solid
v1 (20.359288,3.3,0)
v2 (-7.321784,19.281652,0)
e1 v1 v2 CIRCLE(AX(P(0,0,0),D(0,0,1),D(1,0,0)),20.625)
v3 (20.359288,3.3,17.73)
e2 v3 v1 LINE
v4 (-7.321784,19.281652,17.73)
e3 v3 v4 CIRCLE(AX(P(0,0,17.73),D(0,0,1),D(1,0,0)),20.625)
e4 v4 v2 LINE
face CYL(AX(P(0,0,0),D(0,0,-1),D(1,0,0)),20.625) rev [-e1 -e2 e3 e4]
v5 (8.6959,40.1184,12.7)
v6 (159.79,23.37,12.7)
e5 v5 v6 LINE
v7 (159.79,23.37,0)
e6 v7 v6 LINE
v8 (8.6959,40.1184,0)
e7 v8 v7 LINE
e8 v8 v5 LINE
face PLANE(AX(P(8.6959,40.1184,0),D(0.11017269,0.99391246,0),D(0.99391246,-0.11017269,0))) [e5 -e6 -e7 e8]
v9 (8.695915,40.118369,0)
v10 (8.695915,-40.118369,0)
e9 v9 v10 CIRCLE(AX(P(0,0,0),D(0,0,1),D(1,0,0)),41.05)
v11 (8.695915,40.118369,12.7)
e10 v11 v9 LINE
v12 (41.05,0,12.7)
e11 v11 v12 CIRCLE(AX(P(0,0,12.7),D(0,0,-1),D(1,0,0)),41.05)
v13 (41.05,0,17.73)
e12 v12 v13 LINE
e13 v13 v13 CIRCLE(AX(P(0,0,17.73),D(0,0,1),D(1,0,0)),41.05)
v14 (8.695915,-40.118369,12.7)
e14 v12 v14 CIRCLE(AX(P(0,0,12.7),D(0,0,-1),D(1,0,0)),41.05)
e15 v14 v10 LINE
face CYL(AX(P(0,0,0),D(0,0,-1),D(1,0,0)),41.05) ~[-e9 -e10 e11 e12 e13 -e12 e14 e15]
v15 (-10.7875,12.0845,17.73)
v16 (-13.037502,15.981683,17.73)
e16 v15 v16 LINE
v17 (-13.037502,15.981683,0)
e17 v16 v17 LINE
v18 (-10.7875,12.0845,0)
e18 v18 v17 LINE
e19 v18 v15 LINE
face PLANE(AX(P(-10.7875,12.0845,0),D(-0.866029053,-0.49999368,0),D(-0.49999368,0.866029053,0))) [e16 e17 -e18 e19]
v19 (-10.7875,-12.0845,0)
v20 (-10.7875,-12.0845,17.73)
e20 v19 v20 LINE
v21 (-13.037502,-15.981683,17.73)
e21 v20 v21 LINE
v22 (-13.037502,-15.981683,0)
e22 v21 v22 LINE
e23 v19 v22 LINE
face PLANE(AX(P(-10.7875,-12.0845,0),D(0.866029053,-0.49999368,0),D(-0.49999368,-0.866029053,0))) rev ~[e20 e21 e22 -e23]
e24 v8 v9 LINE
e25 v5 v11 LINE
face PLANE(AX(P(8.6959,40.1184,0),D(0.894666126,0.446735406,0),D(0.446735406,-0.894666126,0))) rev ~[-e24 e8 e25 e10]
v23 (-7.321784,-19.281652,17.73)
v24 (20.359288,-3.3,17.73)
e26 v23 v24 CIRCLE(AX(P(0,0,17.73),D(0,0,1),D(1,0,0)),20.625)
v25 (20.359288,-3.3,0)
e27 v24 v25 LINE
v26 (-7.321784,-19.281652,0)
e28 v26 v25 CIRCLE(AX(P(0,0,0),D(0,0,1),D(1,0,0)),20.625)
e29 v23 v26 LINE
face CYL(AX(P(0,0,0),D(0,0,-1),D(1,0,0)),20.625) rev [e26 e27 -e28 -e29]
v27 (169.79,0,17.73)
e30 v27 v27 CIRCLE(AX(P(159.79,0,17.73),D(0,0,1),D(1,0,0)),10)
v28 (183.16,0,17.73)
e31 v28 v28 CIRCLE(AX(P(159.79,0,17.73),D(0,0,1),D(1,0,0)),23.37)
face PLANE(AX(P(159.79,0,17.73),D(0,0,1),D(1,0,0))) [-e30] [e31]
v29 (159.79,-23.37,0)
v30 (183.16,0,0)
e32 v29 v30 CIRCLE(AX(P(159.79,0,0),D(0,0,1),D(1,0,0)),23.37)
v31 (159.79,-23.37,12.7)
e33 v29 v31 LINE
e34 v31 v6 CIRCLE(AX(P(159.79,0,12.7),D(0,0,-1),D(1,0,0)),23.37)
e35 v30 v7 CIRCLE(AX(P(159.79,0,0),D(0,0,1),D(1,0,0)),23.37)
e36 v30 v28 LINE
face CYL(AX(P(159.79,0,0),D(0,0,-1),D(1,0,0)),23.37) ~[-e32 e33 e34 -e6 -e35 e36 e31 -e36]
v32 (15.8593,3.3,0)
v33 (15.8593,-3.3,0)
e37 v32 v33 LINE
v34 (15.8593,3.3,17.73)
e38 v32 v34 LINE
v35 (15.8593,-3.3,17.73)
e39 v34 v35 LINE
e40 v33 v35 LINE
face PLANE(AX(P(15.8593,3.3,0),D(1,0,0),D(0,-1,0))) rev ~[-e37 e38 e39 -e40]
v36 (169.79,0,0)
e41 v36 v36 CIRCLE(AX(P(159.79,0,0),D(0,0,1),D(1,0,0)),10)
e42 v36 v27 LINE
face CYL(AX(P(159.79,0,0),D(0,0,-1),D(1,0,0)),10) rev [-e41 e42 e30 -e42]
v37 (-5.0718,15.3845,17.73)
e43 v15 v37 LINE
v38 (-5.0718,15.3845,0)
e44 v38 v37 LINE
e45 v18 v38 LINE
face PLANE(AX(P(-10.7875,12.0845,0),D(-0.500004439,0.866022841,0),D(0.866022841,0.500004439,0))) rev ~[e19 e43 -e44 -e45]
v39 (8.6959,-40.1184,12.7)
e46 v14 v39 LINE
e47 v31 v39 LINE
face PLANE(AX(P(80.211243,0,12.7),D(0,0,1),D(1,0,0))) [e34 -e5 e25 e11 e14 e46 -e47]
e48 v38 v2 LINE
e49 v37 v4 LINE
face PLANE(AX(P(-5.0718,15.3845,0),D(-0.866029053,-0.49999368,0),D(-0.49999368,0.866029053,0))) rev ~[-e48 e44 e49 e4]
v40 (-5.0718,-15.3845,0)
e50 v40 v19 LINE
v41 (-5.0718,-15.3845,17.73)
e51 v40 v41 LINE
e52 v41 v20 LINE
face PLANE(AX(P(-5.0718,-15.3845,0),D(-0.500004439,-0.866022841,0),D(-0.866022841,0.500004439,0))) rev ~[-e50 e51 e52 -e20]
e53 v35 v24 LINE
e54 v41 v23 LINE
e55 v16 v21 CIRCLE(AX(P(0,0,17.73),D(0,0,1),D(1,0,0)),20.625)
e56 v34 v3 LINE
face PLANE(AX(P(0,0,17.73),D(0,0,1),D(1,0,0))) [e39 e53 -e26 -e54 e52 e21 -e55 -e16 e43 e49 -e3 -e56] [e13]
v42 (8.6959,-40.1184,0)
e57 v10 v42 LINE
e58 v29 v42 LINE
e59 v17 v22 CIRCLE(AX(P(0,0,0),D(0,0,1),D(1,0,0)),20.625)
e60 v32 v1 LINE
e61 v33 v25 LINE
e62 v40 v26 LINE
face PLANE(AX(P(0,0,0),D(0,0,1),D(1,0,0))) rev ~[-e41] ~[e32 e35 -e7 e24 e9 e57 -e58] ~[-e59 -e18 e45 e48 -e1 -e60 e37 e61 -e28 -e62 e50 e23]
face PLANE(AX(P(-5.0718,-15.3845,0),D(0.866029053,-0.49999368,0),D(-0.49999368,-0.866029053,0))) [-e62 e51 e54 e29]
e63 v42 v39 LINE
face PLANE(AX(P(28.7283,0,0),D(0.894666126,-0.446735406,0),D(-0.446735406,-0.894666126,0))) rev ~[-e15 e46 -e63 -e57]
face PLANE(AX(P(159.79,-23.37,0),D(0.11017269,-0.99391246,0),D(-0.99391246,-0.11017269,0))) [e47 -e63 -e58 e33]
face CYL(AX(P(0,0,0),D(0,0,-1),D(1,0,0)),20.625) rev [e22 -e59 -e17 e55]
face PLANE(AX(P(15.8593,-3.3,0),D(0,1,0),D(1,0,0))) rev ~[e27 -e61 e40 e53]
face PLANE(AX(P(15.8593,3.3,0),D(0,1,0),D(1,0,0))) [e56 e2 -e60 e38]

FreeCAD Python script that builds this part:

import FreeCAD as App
import Part
import Sketcher

V = App.Vector
Q = App.Units.Quantity

doc = App.newDocument("Part")
body = doc.addObject("PartDesign::Body", "Body")
body.AllowCompound = True

# Sketch on XY plane
sketch1 = body.newObject("Sketcher::SketchObject", "Sketch")
sketch1.AttachmentSupport = (doc.getObject("XY_Plane"), [""])
sketch1.MapMode = "FlatFace"
sketch1.addGeometry(Part.Circle(V(0, 0, 0), V(0, 0, 1), 41), False)
sketch1.addGeometry(Part.Circle(V(0, 0, 0), V(0, 0, 1), 21), False)
sketch1.addGeometry(Part.Circle(V(160, 0, 0), V(0, 0, 1), 23), False)
sketch1.addGeometry(Part.Circle(V(160, 0, 0), V(0, 0, 1), 10), False)
sketch1.addConstraint(Sketcher.Constraint("Coincident", 0, 3, -1, 1))
sketch1.addConstraint(Sketcher.Constraint("Coincident", 1, 3, -1, 1))
sketch1.addConstraint(Sketcher.Constraint("Coincident", 3, 3, 2, 3))
sketch1.addConstraint(Sketcher.Constraint("PointOnObject", 2, 3, -1))
sketch1.addConstraint(Sketcher.Constraint("Diameter", 3, 20.0))
sketch1.addConstraint(Sketcher.Constraint("Diameter", 0, 82.1))
sketch1.addConstraint(Sketcher.Constraint("Diameter", 1, 41.25))
sketch1.addConstraint(Sketcher.Constraint("Diameter", 2, 46.74))
sketch1.addConstraint(Sketcher.Constraint("DistanceX", -1, 1, 2, 3, 159.79))
pad1 = body.newObject("PartDesign::Pad", "Pad")
pad1.Profile = sketch1
pad1.Length = 17.73

# Sketch on XY plane
sketch2 = body.newObject("Sketcher::SketchObject", "Sketch001")
sketch2.AttachmentSupport = (doc.getObject("XY_Plane"), [""])
sketch2.MapMode = "FlatFace"
sketch2.addGeometry(Part.LineSegment(V(9, -40, 0), V(160, -23, 0)), False)
sketch2.addGeometry(Part.LineSegment(V(160, -23, 0), V(140, 0, 0)), False)
sketch2.addGeometry(Part.LineSegment(V(140, 0, 0), V(160, 23, 0)), False)
sketch2.addGeometry(Part.LineSegment(V(160, 23, 0), V(9, 40, 0)), False)
sketch2.addGeometry(Part.LineSegment(V(9, 40, 0), V(29, 0, 0)), False)
sketch2.addGeometry(Part.LineSegment(V(29, 0, 0), V(9, -40, 0)), False)
sketch2.addConstraint(Sketcher.Constraint("Coincident", 0, 2, 1, 1))
sketch2.addConstraint(Sketcher.Constraint("Coincident", 1, 2, 2, 1))
sketch2.addConstraint(Sketcher.Constraint("Coincident", 2, 2, 3, 1))
sketch2.addConstraint(Sketcher.Constraint("Coincident", 3, 2, 4, 1))
sketch2.addConstraint(Sketcher.Constraint("Coincident", 4, 2, 5, 1))
sketch2.addConstraint(Sketcher.Constraint("Coincident", 5, 2, 0, 1))
sketch2.addConstraint(Sketcher.Constraint("Symmetric", 0, 2, 2, 2, -1))
sketch2.addConstraint(Sketcher.Constraint("Symmetric", 3, 2, 5, 2, -1))
sketch2.addConstraint(Sketcher.Constraint("PointOnObject", 1, 2, -1))
sketch2.addConstraint(Sketcher.Constraint("PointOnObject", 4, 2, -1))
sketch2.addConstraint(Sketcher.Constraint("DistanceX", -1, 1, 0, 2, 159.79))
sketch2.addConstraint(Sketcher.Constraint("DistanceY", 0, 2, -1, 1, 23.37))
sketch2.addConstraint(Sketcher.Constraint("DistanceX", 3, 2, 1, 2, 130.94))
sketch2.addConstraint(Sketcher.Constraint("DistanceX", -1, 1, 3, 2, 8.696))
sketch2.addConstraint(Sketcher.Constraint("Distance", 0, 152.0195))
sketch2.addConstraint(Sketcher.Constraint("Distance", 4, 44.8418))
pad2 = body.newObject("PartDesign::Pad", "Pad001")
pad2.Profile = sketch2
pad2.Length = 12.7

# Sketch on XY plane
sketch3 = body.newObject("Sketcher::SketchObject", "Sketch002")
sketch3.AttachmentSupport = (doc.getObject("XY_Plane"), [""])
sketch3.MapMode = "FlatFace"
sketch3.addGeometry(Part.LineSegment(V(-8, -20, 0), V(-5, -15, 0)), False)
sketch3.addGeometry(Part.LineSegment(V(-5, -15, 0), V(-11, -12, 0)), False)
sketch3.addGeometry(Part.LineSegment(V(-11, -12, 0), V(-13, -16, 0)), False)
sketch3.addGeometry(Part.LineSegment(V(-13, -16, 0), V(-8, -20, 0)), False)
sketch3.addGeometry(Part.LineSegment(V(-13, 16, 0), V(-11, 12, 0)), False)
sketch3.addGeometry(Part.LineSegment(V(-11, 12, 0), V(-5, 15, 0)), False)
sketch3.addGeometry(Part.LineSegment(V(-5, 15, 0), V(-8, 20, 0)), False)
sketch3.addGeometry(Part.LineSegment(V(-8, 20, 0), V(-13, 16, 0)), False)
sketch3.addGeometry(Part.LineSegment(V(16, 3, 0), V(16, -3, 0)), False)
sketch3.addGeometry(Part.LineSegment(V(16, -3, 0), V(21, -3, 0)), False)
sketch3.addGeometry(Part.LineSegment(V(21, -3, 0), V(21, 3, 0)), False)
sketch3.addGeometry(Part.LineSegment(V(21, 3, 0), V(16, 3, 0)), False)
sketch3.addConstraint(Sketcher.Constraint("Coincident", 0, 2, 1, 1))
sketch3.addConstraint(Sketcher.Constraint("Coincident", 1, 2, 2, 1))
sketch3.addConstraint(Sketcher.Constraint("Coincident", 2, 2, 3, 1))
sketch3.addConstraint(Sketcher.Constraint("Coincident", 3, 2, 0, 1))
sketch3.addConstraint(Sketcher.Constraint("Coincident", 4, 2, 5, 1))
sketch3.addConstraint(Sketcher.Constraint("Coincident", 5, 2, 6, 1))
sketch3.addConstraint(Sketcher.Constraint("Coincident", 6, 2, 7, 1))
sketch3.addConstraint(Sketcher.Constraint("Coincident", 7, 2, 4, 1))
sketch3.addConstraint(Sketcher.Constraint("Coincident", 8, 2, 9, 1))
sketch3.addConstraint(Sketcher.Constraint("Coincident", 9, 2, 10, 1))
sketch3.addConstraint(Sketcher.Constraint("Coincident", 10, 2, 11, 1))
sketch3.addConstraint(Sketcher.Constraint("Coincident", 11, 2, 8, 1))
sketch3.addConstraint(Sketcher.Constraint("Vertical", 8))
sketch3.addConstraint(Sketcher.Constraint("Horizontal", 9))
sketch3.addConstraint(Sketcher.Constraint("Vertical", 10))
sketch3.addConstraint(Sketcher.Constraint("Horizontal", 11))
sketch3.addConstraint(Sketcher.Constraint("Symmetric", 1, 2, 4, 2, -1))
sketch3.addConstraint(Sketcher.Constraint("Symmetric", 0, 2, 5, 2, -1))
sketch3.addConstraint(Sketcher.Constraint("Symmetric", 3, 2, 6, 2, -1))
sketch3.addConstraint(Sketcher.Constraint("Symmetric", 2, 2, 7, 2, -1))
sketch3.addConstraint(Sketcher.Constraint("Perpendicular", 0, 1))
sketch3.addConstraint(Sketcher.Constraint("Perpendicular", 1, 2))
sketch3.addConstraint(Sketcher.Constraint("Perpendicular", 2, 3))
sketch3.addConstraint(Sketcher.Constraint("DistanceX", 9, 1, 9, 2, 5.0))
sketch3.addConstraint(Sketcher.Constraint("Angle", 0, Q("60.0004 deg")))
sketch3.addConstraint(Sketcher.Constraint("Distance", 0, 5.0))
sketch3.addConstraint(Sketcher.Constraint("DistanceY", 8, 2, 8, 1, 6.6))
sketch3.addConstraint(Sketcher.Constraint("Distance", 1, 6.6))
sketch3.addConstraint(Sketcher.Constraint("DistanceY", 8, 2, -1, 1, 3.3))
sketch3.addConstraint(Sketcher.Constraint("DistanceY", 1, 2, 4, 2, 24.169))
sketch3.addConstraint(Sketcher.Constraint("DistanceX", 0, 2, 8, 2, 20.931))
sketch3.addConstraint(Sketcher.Constraint("DistanceX", 0, 2, -1, 1, 5.0718))
pad3 = body.newObject("PartDesign::Pad", "Pad002")
pad3.Profile = sketch3
pad3.Length = 17.73

doc.recompute()
